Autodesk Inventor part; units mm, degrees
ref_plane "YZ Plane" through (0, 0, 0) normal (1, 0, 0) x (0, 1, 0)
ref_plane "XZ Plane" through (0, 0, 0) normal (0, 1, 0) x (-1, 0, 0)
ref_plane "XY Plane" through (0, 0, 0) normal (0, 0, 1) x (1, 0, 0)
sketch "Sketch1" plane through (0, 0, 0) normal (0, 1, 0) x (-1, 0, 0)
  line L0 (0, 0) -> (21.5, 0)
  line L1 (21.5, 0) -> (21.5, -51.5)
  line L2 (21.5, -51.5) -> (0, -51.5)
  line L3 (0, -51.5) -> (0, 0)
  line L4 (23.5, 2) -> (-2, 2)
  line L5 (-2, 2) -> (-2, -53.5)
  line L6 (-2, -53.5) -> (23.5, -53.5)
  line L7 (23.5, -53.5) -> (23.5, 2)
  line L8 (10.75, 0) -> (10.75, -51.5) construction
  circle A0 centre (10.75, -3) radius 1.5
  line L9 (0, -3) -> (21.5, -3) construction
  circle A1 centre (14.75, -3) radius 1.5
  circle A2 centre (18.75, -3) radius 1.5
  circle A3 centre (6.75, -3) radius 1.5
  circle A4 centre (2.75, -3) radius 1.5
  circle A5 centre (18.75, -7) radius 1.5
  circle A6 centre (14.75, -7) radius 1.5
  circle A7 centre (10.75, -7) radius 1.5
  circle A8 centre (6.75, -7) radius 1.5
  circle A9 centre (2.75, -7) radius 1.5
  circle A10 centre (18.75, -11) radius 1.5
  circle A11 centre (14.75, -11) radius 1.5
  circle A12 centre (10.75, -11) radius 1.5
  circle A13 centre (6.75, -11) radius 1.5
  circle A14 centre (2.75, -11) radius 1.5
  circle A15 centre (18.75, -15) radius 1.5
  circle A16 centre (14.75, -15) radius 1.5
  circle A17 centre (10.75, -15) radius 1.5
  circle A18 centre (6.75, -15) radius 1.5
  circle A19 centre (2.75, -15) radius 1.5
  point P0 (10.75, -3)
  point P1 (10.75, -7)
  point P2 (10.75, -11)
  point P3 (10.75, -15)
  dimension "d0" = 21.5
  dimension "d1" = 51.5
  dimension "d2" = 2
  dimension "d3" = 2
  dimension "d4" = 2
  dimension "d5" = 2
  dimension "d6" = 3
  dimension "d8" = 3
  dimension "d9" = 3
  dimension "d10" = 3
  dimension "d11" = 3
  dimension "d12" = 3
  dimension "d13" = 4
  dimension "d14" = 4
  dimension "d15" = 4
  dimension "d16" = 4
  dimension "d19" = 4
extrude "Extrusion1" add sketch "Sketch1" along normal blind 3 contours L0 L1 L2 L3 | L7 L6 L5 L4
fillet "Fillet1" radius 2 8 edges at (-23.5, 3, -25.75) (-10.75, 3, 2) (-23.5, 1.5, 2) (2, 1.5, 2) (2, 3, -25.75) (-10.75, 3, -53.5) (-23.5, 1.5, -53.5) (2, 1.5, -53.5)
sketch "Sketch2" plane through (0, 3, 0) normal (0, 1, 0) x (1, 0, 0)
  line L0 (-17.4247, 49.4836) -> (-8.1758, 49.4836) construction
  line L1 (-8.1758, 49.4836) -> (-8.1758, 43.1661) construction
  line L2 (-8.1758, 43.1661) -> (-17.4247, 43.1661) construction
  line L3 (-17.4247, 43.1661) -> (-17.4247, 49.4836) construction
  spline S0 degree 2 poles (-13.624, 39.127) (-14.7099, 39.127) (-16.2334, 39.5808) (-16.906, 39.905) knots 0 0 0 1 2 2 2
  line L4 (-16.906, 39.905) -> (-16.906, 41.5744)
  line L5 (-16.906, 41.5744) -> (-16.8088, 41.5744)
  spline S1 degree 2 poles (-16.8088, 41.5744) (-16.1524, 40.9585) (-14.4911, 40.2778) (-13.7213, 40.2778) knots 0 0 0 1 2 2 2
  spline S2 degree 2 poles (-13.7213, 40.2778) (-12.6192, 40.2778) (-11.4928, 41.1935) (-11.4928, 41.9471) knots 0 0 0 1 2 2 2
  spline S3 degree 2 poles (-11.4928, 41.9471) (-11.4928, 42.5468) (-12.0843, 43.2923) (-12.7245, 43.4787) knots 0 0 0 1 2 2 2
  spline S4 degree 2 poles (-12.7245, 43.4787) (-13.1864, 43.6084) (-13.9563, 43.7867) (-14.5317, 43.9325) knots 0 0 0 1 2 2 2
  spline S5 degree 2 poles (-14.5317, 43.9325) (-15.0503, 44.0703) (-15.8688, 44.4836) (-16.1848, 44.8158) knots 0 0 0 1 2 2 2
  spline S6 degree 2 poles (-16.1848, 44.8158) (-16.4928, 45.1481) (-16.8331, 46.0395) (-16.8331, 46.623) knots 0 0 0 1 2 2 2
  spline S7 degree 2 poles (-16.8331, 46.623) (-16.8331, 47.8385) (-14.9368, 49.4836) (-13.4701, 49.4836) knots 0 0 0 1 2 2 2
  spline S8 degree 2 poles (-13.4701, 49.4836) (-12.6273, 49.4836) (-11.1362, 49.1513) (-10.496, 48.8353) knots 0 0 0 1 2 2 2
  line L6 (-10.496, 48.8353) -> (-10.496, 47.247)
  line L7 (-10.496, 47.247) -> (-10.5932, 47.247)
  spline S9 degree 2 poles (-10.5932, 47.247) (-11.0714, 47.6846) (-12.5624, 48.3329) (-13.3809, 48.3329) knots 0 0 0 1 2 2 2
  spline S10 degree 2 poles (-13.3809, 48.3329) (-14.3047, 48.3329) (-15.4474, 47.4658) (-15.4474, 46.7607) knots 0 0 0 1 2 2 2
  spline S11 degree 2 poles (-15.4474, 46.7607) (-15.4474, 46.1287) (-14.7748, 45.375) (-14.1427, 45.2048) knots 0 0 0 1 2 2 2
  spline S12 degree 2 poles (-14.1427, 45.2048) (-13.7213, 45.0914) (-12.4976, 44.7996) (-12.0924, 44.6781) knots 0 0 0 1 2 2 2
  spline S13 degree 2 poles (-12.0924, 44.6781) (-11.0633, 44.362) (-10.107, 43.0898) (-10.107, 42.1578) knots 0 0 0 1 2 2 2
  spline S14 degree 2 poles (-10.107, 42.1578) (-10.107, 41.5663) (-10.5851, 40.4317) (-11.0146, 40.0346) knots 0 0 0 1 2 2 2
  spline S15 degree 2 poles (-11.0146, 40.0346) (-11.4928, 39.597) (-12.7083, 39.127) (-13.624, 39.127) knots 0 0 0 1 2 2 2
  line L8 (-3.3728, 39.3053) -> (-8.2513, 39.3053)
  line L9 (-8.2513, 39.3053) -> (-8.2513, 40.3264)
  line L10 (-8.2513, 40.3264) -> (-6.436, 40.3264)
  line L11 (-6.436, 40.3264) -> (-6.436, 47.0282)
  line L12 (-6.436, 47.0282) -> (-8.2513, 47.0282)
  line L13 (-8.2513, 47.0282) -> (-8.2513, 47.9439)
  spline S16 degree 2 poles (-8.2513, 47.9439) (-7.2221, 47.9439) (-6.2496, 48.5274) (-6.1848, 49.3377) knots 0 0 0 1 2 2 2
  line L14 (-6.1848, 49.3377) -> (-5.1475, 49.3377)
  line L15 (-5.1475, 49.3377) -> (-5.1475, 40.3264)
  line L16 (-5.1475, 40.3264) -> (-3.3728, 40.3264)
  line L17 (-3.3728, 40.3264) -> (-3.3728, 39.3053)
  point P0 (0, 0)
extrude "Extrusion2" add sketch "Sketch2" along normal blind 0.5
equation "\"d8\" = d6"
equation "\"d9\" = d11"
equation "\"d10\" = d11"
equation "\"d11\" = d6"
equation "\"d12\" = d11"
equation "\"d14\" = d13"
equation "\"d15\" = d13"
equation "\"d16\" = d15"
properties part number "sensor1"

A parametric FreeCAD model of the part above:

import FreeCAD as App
import Part
import Sketcher
Q = App.Units.Quantity


def edges_at(feature, points):
    """Names of the edges that pass closest to the given points."""
    edges = feature.Shape.Edges
    near = lambda p: min(range(len(edges)), key=lambda i: edges[i].distToShape(Part.Vertex(*p))[0])
    return sorted({f"Edge{near(p) + 1}" for p in points})

doc = App.newDocument("Part")
body = doc.addObject("PartDesign::Body", "Body")

# Sketch on XZ plane
sketch1 = body.newObject("Sketcher::SketchObject", "Sketch")
sketch1.AttachmentSupport = (doc.getObject("XZ_Plane"), [""])
sketch1.MapMode = "FlatFace"
sketch1.addGeometry([
    Part.LineSegment(App.Vector(-23.5, -53.5, 0), App.Vector(-23.5, 2, 0)),  # 0
    Part.LineSegment(App.Vector(-23.5, 2, 0), App.Vector(2, 2, 0)),  # 1
    Part.LineSegment(App.Vector(2, 2, 0), App.Vector(2, -53.5, 0)),  # 2
    Part.LineSegment(App.Vector(2, -53.5, 0), App.Vector(-23.5, -53.5, 0)),  # 3
    Part.Circle(App.Vector(-2.75, -15, 0), App.Vector(0, 0, 1), 1.5),  # 4
    Part.Circle(App.Vector(-6.75, -15, 0), App.Vector(0, 0, 1), 1.5),  # 5
    Part.Circle(App.Vector(-2.75, -11, 0), App.Vector(0, 0, 1), 1.5),  # 6
    Part.Circle(App.Vector(-2.75, -7, 0), App.Vector(0, 0, 1), 1.5),  # 7
    Part.Circle(App.Vector(-2.75, -3, 0), App.Vector(0, 0, 1), 1.5),  # 8
    Part.Circle(App.Vector(-6.75, -11, 0), App.Vector(0, 0, 1), 1.5),  # 9
    Part.Circle(App.Vector(-6.75, -7, 0), App.Vector(0, 0, 1), 1.5),  # 10
    Part.Circle(App.Vector(-6.75, -3, 0), App.Vector(0, 0, 1), 1.5),  # 11
    Part.Circle(App.Vector(-10.75, -15, 0), App.Vector(0, 0, 1), 1.5),  # 12
    Part.Circle(App.Vector(-14.75, -15, 0), App.Vector(0, 0, 1), 1.5),  # 13
    Part.Circle(App.Vector(-18.75, -15, 0), App.Vector(0, 0, 1), 1.5),  # 14
    Part.Circle(App.Vector(-10.75, -11, 0), App.Vector(0, 0, 1), 1.5),  # 15
    Part.Circle(App.Vector(-10.75, -7, 0), App.Vector(0, 0, 1), 1.5),  # 16
    Part.Circle(App.Vector(-14.75, -11, 0), App.Vector(0, 0, 1), 1.5),  # 17
    Part.Circle(App.Vector(-14.75, -7, 0), App.Vector(0, 0, 1), 1.5),  # 18
    Part.Circle(App.Vector(-10.75, -3, 0), App.Vector(0, 0, 1), 1.5),  # 19
    Part.Circle(App.Vector(-14.75, -3, 0), App.Vector(0, 0, 1), 1.5),  # 20
    Part.Circle(App.Vector(-18.75, -11, 0), App.Vector(0, 0, 1), 1.5),  # 21
    Part.Circle(App.Vector(-18.75, -7, 0), App.Vector(0, 0, 1), 1.5),  # 22
    Part.Circle(App.Vector(-18.75, -3, 0), App.Vector(0, 0, 1), 1.5),  # 23
], False)
sketch1.addConstraint([
    Sketcher.Constraint("Coincident", 0, 2, 1, 1),
    Sketcher.Constraint("Coincident", 1, 2, 2, 1),
    Sketcher.Constraint("Coincident", 2, 2, 3, 1),
    Sketcher.Constraint("Coincident", 3, 2, 0, 1),
    Sketcher.Constraint("Vertical", 0),
    Sketcher.Constraint("Horizontal", 1),
    Sketcher.Constraint("Vertical", 2),
    Sketcher.Constraint("Horizontal", 3),
    Sketcher.Constraint("Equal", 4, 5),
    Sketcher.Constraint("Equal", 5, 6),
    Sketcher.Constraint("Equal", 6, 7),
    Sketcher.Constraint("Equal", 7, 8),
    Sketcher.Constraint("Equal", 8, 9),
    Sketcher.Constraint("Equal", 9, 10),
    Sketcher.Constraint("Equal", 10, 11),
    Sketcher.Constraint("Equal", 11, 12),
    Sketcher.Constraint("Equal", 12, 13),
    Sketcher.Constraint("Equal", 13, 14),
    Sketcher.Constraint("Equal", 14, 15),
    Sketcher.Constraint("Equal", 15, 16),
    Sketcher.Constraint("Equal", 16, 17),
    Sketcher.Constraint("Equal", 17, 18),
    Sketcher.Constraint("Equal", 18, 19),
    Sketcher.Constraint("Equal", 19, 20),
    Sketcher.Constraint("Equal", 20, 21),
    Sketcher.Constraint("Equal", 21, 22),
    Sketcher.Constraint("Equal", 22, 23),
    Sketcher.Constraint("Horizontal", 4, 3, 5, 3),
    Sketcher.Constraint("Horizontal", 6, 3, 9, 3),
    Sketcher.Constraint("Horizontal", 7, 3, 10, 3),
    Sketcher.Constraint("Horizontal", 8, 3, 11, 3),
    Sketcher.Constraint("Horizontal", 5, 3, 12, 3),
    Sketcher.Constraint("Horizontal", 12, 3, 13, 3),
    Sketcher.Constraint("Horizontal", 13, 3, 14, 3),
    Sketcher.Constraint("Horizontal", 9, 3, 15, 3),
    Sketcher.Constraint("Horizontal", 10, 3, 16, 3),
    Sketcher.Constraint("Horizontal", 15, 3, 17, 3),
    Sketcher.Constraint("Horizontal", 16, 3, 18, 3),
    Sketcher.Constraint("Horizontal", 11, 3, 19, 3),
    Sketcher.Constraint("Horizontal", 19, 3, 20, 3),
    Sketcher.Constraint("Horizontal", 17, 3, 21, 3),
    Sketcher.Constraint("Horizontal", 18, 3, 22, 3),
    Sketcher.Constraint("Horizontal", 20, 3, 23, 3),
    Sketcher.Constraint("Vertical", 4, 3, 6, 3),
    Sketcher.Constraint("Vertical", 6, 3, 7, 3),
    Sketcher.Constraint("Vertical", 7, 3, 8, 3),
    Sketcher.Constraint("Vertical", 5, 3, 9, 3),
    Sketcher.Constraint("Vertical", 9, 3, 10, 3),
    Sketcher.Constraint("Vertical", 10, 3, 11, 3),
    Sketcher.Constraint("Vertical", 12, 3, 15, 3),
    Sketcher.Constraint("Vertical", 15, 3, 16, 3),
    Sketcher.Constraint("Vertical", 13, 3, 17, 3),
    Sketcher.Constraint("Vertical", 17, 3, 18, 3),
    Sketcher.Constraint("Vertical", 16, 3, 19, 3),
    Sketcher.Constraint("Vertical", 18, 3, 20, 3),
    Sketcher.Constraint("Vertical", 14, 3, 21, 3),
    Sketcher.Constraint("Vertical", 21, 3, 22, 3),
    Sketcher.Constraint("Vertical", 22, 3, 23, 3),
    Sketcher.Constraint("Diameter", 4, Q("3 mm")),
    Sketcher.Constraint("DistanceY", 8, 3, -1, 1, Q("3 mm")),
    Sketcher.Constraint("DistanceY", -1, 1, 0, 2, Q("2 mm")),
    Sketcher.Constraint("DistanceX", -1, 1, 1, 2, Q("2 mm")),
    Sketcher.Constraint("DistanceX", 5, 3, 4, 3, Q("4 mm")),
    Sketcher.Constraint("DistanceY", 4, 3, 6, 3, Q("4 mm")),
    Sketcher.Constraint("DistanceY", 6, 3, 7, 3, Q("4 mm")),
    Sketcher.Constraint("DistanceY", 7, 3, 8, 3, Q("4 mm")),
    Sketcher.Constraint("DistanceX", 12, 3, 5, 3, Q("4 mm")),
    Sketcher.Constraint("DistanceX", 13, 3, 12, 3, Q("4 mm")),
    Sketcher.Constraint("DistanceX", 14, 3, 13, 3, Q("4 mm")),
    Sketcher.Constraint("DistanceX", 1, 1, 1, 2, Q("25.5 mm")),
    Sketcher.Constraint("DistanceY", 0, 1, 0, 2, Q("55.5 mm")),
    Sketcher.Constraint("DistanceX", 4, 3, -1, 1, Q("2.75 mm")),
])
pad1 = body.newObject("PartDesign::Pad", "Pad")
pad1.Profile = sketch1
pad1.Length = 3
pad1.Reversed = True
doc.recompute()

fillet = body.newObject("PartDesign::Fillet", "Fillet")
fillet.Base = (pad1, edges_at(pad1, [
    (-23.5, 3, -25.75),
    (-10.75, 3, 2),
    (-23.5, 1.5, 2),
    (2, 1.5, 2),
    (2, 3, -25.75),
    (-10.75, 3, -53.5),
    (-23.5, 1.5, -53.5),
    (2, 1.5, -53.5),
]))
fillet.Radius = 2

# Sketch on XZ plane
sketch2 = body.newObject("Sketcher::SketchObject", "Sketch001")
sketch2.AttachmentSupport = (doc.getObject("XZ_Plane"), [""])
sketch2.MapMode = "FlatFace"
sketch2.AttachmentOffset = App.Placement(App.Vector(0, 0, -3), App.Rotation())
sketch2.addGeometry([
    Part.BSplineCurve([App.Vector(-13.624, -39.127, 0), App.Vector(-14.7099, -39.127, 0), App.Vector(-16.2334, -39.5808, 0), App.Vector(-16.906, -39.905, 0)], [3, 1, 3], [0, 1, 2], False, 2, [1, 1, 1, 1], False),  # 0
    Part.BSplineCurve([App.Vector(-11.0146, -40.0346, 0), App.Vector(-11.4928, -39.597, 0), App.Vector(-12.7083, -39.127, 0), App.Vector(-13.624, -39.127, 0)], [3, 1, 3], [0, 1, 2], False, 2, [1, 1, 1, 1], False),  # 1
    Part.BSplineCurve([App.Vector(-10.107, -42.1578, 0), App.Vector(-10.107, -41.5663, 0), App.Vector(-10.5851, -40.4317, 0), App.Vector(-11.0146, -40.0346, 0)], [3, 1, 3], [0, 1, 2], False, 2, [1, 1, 1, 1], False),  # 2
    Part.BSplineCurve([App.Vector(-12.0924, -44.6781, 0), App.Vector(-11.0633, -44.362, 0), App.Vector(-10.107, -43.0898, 0), App.Vector(-10.107, -42.1578, 0)], [3, 1, 3], [0, 1, 2], False, 2, [1, 1, 1, 1], False),  # 3
    Part.BSplineCurve([App.Vector(-14.1427, -45.2048, 0), App.Vector(-13.7213, -45.0914, 0), App.Vector(-12.4976, -44.7996, 0), App.Vector(-12.0924, -44.6781, 0)], [3, 1, 3], [0, 1, 2], False, 2, [1, 1, 1, 1], False),  # 4
    Part.BSplineCurve([App.Vector(-15.4474, -46.7607, 0), App.Vector(-15.4474, -46.1287, 0), App.Vector(-14.7748, -45.375, 0), App.Vector(-14.1427, -45.2048, 0)], [3, 1, 3], [0, 1, 2], False, 2, [1, 1, 1, 1], False),  # 5
    Part.BSplineCurve([App.Vector(-13.3809, -48.3329, 0), App.Vector(-14.3047, -48.3329, 0), App.Vector(-15.4474, -47.4658, 0), App.Vector(-15.4474, -46.7607, 0)], [3, 1, 3], [0, 1, 2], False, 2, [1, 1, 1, 1], False),  # 6
    Part.BSplineCurve([App.Vector(-10.5932, -47.247, 0), App.Vector(-11.0714, -47.6846, 0), App.Vector(-12.5624, -48.3329, 0), App.Vector(-13.3809, -48.3329, 0)], [3, 1, 3], [0, 1, 2], False, 2, [1, 1, 1, 1], False),  # 7
    Part.LineSegment(App.Vector(-10.5932, -47.247, 0), App.Vector(-10.496, -47.247, 0)),  # 8
    Part.LineSegment(App.Vector(-10.496, -47.247, 0), App.Vector(-10.496, -48.8353, 0)),  # 9
    Part.BSplineCurve([App.Vector(-13.4701, -49.4836, 0), App.Vector(-12.6273, -49.4836, 0), App.Vector(-11.1362, -49.1513, 0), App.Vector(-10.496, -48.8353, 0)], [3, 1, 3], [0, 1, 2], False, 2, [1, 1, 1, 1], False),  # 10
    Part.BSplineCurve([App.Vector(-16.8331, -46.623, 0), App.Vector(-16.8331, -47.8385, 0), App.Vector(-14.9368, -49.4836, 0), App.Vector(-13.4701, -49.4836, 0)], [3, 1, 3], [0, 1, 2], False, 2, [1, 1, 1, 1], False),  # 11
    Part.BSplineCurve([App.Vector(-16.1848, -44.8158, 0), App.Vector(-16.4928, -45.1481, 0), App.Vector(-16.8331, -46.0395, 0), App.Vector(-16.8331, -46.623, 0)], [3, 1, 3], [0, 1, 2], False, 2, [1, 1, 1, 1], False),  # 12
    Part.BSplineCurve([App.Vector(-14.5317, -43.9325, 0), App.Vector(-15.0503, -44.0703, 0), App.Vector(-15.8688, -44.4836, 0), App.Vector(-16.1848, -44.8158, 0)], [3, 1, 3], [0, 1, 2], False, 2, [1, 1, 1, 1], False),  # 13
    Part.BSplineCurve([App.Vector(-12.7245, -43.4787, 0), App.Vector(-13.1864, -43.6084, 0), App.Vector(-13.9563, -43.7867, 0), App.Vector(-14.5317, -43.9325, 0)], [3, 1, 3], [0, 1, 2], False, 2, [1, 1, 1, 1], False),  # 14
    Part.BSplineCurve([App.Vector(-11.4928, -41.9471, 0), App.Vector(-11.4928, -42.5468, 0), App.Vector(-12.0843, -43.2923, 0), App.Vector(-12.7245, -43.4787, 0)], [3, 1, 3], [0, 1, 2], False, 2, [1, 1, 1, 1], False),  # 15
    Part.BSplineCurve([App.Vector(-13.7213, -40.2778, 0), App.Vector(-12.6192, -40.2778, 0), App.Vector(-11.4928, -41.1935, 0), App.Vector(-11.4928, -41.9471, 0)], [3, 1, 3], [0, 1, 2], False, 2, [1, 1, 1, 1], False),  # 16
    Part.BSplineCurve([App.Vector(-16.8088, -41.5744, 0), App.Vector(-16.1524, -40.9585, 0), App.Vector(-14.4911, -40.2778, 0), App.Vector(-13.7213, -40.2778, 0)], [3, 1, 3], [0, 1, 2], False, 2, [1, 1, 1, 1], False),  # 17
    Part.LineSegment(App.Vector(-16.8088, -41.5744, 0), App.Vector(-16.906, -41.5744, 0)),  # 18
    Part.LineSegment(App.Vector(-16.906, -41.5744, 0), App.Vector(-16.906, -39.905, 0)),  # 19
    Part.LineSegment(App.Vector(-8.2513, -39.3053, 0), App.Vector(-3.3728, -39.3053, 0)),  # 20
    Part.LineSegment(App.Vector(-3.3728, -39.3053, 0), App.Vector(-3.3728, -40.3264, 0)),  # 21
    Part.LineSegment(App.Vector(-3.3728, -40.3264, 0), App.Vector(-5.1475, -40.3264, 0)),  # 22
    Part.LineSegment(App.Vector(-5.1475, -40.3264, 0), App.Vector(-5.1475, -49.3377, 0)),  # 23
    Part.LineSegment(App.Vector(-5.1475, -49.3377, 0), App.Vector(-6.1848, -49.3377, 0)),  # 24
    Part.BSplineCurve([App.Vector(-8.2513, -47.9439, 0), App.Vector(-7.2221, -47.9439, 0), App.Vector(-6.2496, -48.5274, 0), App.Vector(-6.1848, -49.3377, 0)], [3, 1, 3], [0, 1, 2], False, 2, [1, 1, 1, 1], False),  # 25
    Part.LineSegment(App.Vector(-8.2513, -47.9439, 0), App.Vector(-8.2513, -47.0282, 0)),  # 26
    Part.LineSegment(App.Vector(-8.2513, -47.0282, 0), App.Vector(-6.436, -47.0282, 0)),  # 27
    Part.LineSegment(App.Vector(-6.436, -47.0282, 0), App.Vector(-6.436, -40.3264, 0)),  # 28
    Part.LineSegment(App.Vector(-6.436, -40.3264, 0), App.Vector(-8.2513, -40.3264, 0)),  # 29
    Part.LineSegment(App.Vector(-8.2513, -40.3264, 0), App.Vector(-8.2513, -39.3053, 0)),  # 30
], False)
sketch2.addConstraint([
    Sketcher.Constraint("Block", 0),
    Sketcher.Constraint("Block", 1),
    Sketcher.Constraint("Block", 2),
    Sketcher.Constraint("Block", 3),
    Sketcher.Constraint("Block", 4),
    Sketcher.Constraint("Block", 5),
    Sketcher.Constraint("Block", 6),
    Sketcher.Constraint("Block", 7),
    Sketcher.Constraint("Block", 10),
    Sketcher.Constraint("Block", 11),
    Sketcher.Constraint("Block", 12),
    Sketcher.Constraint("Block", 13),
    Sketcher.Constraint("Block", 14),
    Sketcher.Constraint("Block", 15),
    Sketcher.Constraint("Block", 16),
    Sketcher.Constraint("Block", 17),
    Sketcher.Constraint("Block", 25),
    Sketcher.Constraint("Coincident", 7, 1, 8, 1),
    Sketcher.Constraint("Coincident", 8, 2, 9, 1),
    Sketcher.Constraint("Coincident", 9, 2, 10, 2),
    Sketcher.Constraint("Coincident", 17, 1, 18, 1),
    Sketcher.Constraint("Coincident", 18, 2, 19, 1),
    Sketcher.Constraint("Coincident", 19, 2, 0, 2),
    Sketcher.Constraint("Coincident", 20, 2, 21, 1),
    Sketcher.Constraint("Coincident", 21, 2, 22, 1),
    Sketcher.Constraint("Coincident", 22, 2, 23, 1),
    Sketcher.Constraint("Coincident", 23, 2, 24, 1),
    Sketcher.Constraint("Coincident", 24, 2, 25, 2),
    Sketcher.Constraint("Coincident", 25, 1, 26, 1),
    Sketcher.Constraint("Coincident", 26, 2, 27, 1),
    Sketcher.Constraint("Coincident", 27, 2, 28, 1),
    Sketcher.Constraint("Coincident", 28, 2, 29, 1),
    Sketcher.Constraint("Coincident", 29, 2, 30, 1),
    Sketcher.Constraint("Coincident", 30, 2, 20, 1),
    Sketcher.Constraint("Horizontal", 8),
    Sketcher.Constraint("Vertical", 9),
    Sketcher.Constraint("Horizontal", 18),
    Sketcher.Constraint("Vertical", 19),
    Sketcher.Constraint("Horizontal", 20),
    Sketcher.Constraint("Vertical", 21),
    Sketcher.Constraint("Horizontal", 22),
    Sketcher.Constraint("Vertical", 23),
    Sketcher.Constraint("Horizontal", 24),
    Sketcher.Constraint("Vertical", 26),
    Sketcher.Constraint("Horizontal", 27),
    Sketcher.Constraint("Vertical", 28),
    Sketcher.Constraint("Horizontal", 29),
    Sketcher.Constraint("Vertical", 30),
    Sketcher.Constraint("Horizontal", 22, 2, 28, 2),
    Sketcher.Constraint("Vertical", 26, 2, 29, 2),
    Sketcher.Constraint("DistanceY", 21, 2, 21, 1, Q("1.021 mm")),
    Sketcher.Constraint("DistanceY", 9, 2, 20, 2, Q("9.53 mm")),
    Sketcher.Constraint("DistanceX", 8, 2, 27, 2, Q("4.06 mm")),
    Sketcher.Constraint("DistanceX", 20, 1, 20, 2, Q("4.8785 mm")),
    Sketcher.Constraint("DistanceX", 22, 2, 22, 1, Q("1.7747 mm")),
    Sketcher.Constraint("DistanceY", 26, 1, 26, 2, Q("0.9157 mm")),
])
pad2 = body.newObject("PartDesign::Pad", "Pad001")
pad2.Profile = sketch2
pad2.Length = 0.5
pad2.Reversed = True

doc.recompute()
